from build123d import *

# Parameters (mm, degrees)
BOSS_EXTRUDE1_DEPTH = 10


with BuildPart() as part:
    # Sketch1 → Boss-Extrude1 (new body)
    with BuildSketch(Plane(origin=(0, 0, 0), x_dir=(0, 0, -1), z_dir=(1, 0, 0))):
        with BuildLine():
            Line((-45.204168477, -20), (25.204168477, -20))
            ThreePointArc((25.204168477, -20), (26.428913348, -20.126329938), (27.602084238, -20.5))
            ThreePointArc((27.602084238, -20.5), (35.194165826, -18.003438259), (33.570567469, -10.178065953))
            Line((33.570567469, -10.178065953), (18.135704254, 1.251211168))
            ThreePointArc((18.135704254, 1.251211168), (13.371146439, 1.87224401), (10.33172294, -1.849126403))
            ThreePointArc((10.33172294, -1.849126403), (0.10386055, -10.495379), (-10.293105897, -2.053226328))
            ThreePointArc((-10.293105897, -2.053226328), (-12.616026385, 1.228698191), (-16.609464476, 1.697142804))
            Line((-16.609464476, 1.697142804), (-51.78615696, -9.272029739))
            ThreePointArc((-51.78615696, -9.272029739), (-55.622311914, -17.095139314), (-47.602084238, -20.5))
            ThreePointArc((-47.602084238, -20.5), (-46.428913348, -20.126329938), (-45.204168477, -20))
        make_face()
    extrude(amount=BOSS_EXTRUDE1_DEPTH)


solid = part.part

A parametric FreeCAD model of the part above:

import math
import FreeCAD as App
import Part
import Sketcher

V = App.Vector
Q = App.Units.Quantity

doc = App.newDocument("Part")
params = doc.addObject("Spreadsheet::Sheet", "Params")
for row, (alias, value) in enumerate([
    ("sketch1_radius", "6 mm"),
    ("pad1_length", "10 mm"),
], start=1):
    params.set(f"A{row}", alias)
    params.set(f"B{row}", "=" + value)
    params.setAlias(f"B{row}", alias)

body = doc.addObject("PartDesign::Body", "Body")

sketch1 = body.newObject("Sketcher::SketchObject", "Sketch")
sketch1.AttachmentSupport = (doc.getObject("YZ_Plane"), [""])
sketch1.MapMode = "FlatFace"
sketch1.addGeometry(Part.LineSegment(V(-20, 45.2, 0), V(-20, -25.2, 0)), False)
sketch1.addGeometry(Part.ArcOfCircle(Part.Circle(V(-26, -25.2, 0), V(0, 0, 1), 6), math.radians(-24), math.radians(0)), False)
sketch1.addGeometry(Part.ArcOfCircle(Part.Circle(V(-15, -30, 0), V(0, 0, 1), 6), math.radians(156), math.radians(323)), False)
sketch1.addGeometry(Part.LineSegment(V(-10.2, -33.6, 0), V(1.3, -18.1, 0)), False)
sketch1.addGeometry(Part.ArcOfCircle(Part.Circle(V(-2.7, -15.2, 0), V(0, 0, 1), 4.9), math.radians(-37), math.radians(80)), False)
sketch1.addGeometry(Part.ArcOfCircle(Part.Circle(V(0, 0, 0), V(0, 0, 1), 10.5), math.radians(101), math.radians(260)), False)
sketch1.addGeometry(Part.ArcOfCircle(Part.Circle(V(-3, 15.1, 0), V(0, 0, 1), 4.9), math.radians(-79), math.radians(17)), False)
sketch1.addGeometry(Part.LineSegment(V(1.7, 16.6, 0), V(-9.3, 51.8, 0)), False)
sketch1.addGeometry(Part.ArcOfCircle(Part.Circle(V(-15, 50, 0), V(0, 0, 1), 6), math.radians(17), math.radians(204)), False)
sketch1.addGeometry(Part.ArcOfCircle(Part.Circle(V(-26, 45.2, 0), V(0, 0, 1), 6), math.radians(0), math.radians(24)), False)
sketch1.addConstraint(Sketcher.Constraint("Tangent", 0, 2, 1, 2))
sketch1.addConstraint(Sketcher.Constraint("Tangent", 1, 1, 2, 1))
sketch1.addConstraint(Sketcher.Constraint("Tangent", 2, 2, 3, 1))
sketch1.addConstraint(Sketcher.Constraint("Tangent", 3, 2, 4, 1))
sketch1.addConstraint(Sketcher.Constraint("Tangent", 4, 2, 5, 2))
sketch1.addConstraint(Sketcher.Constraint("Tangent", 5, 1, 6, 1))
sketch1.addConstraint(Sketcher.Constraint("Tangent", 6, 2, 7, 1))
sketch1.addConstraint(Sketcher.Constraint("Tangent", 7, 2, 8, 1))
sketch1.addConstraint(Sketcher.Constraint("Tangent", 8, 2, 9, 2))
sketch1.addConstraint(Sketcher.Constraint("Tangent", 9, 1, 0, 1))
sketch1.addConstraint(Sketcher.Constraint("Vertical", 0))
sketch1.addConstraint(Sketcher.Constraint("Coincident", 5, 3, -1, 1))
sketch1.addConstraint(Sketcher.Constraint("Equal", 1, 2))
sketch1.addConstraint(Sketcher.Constraint("Equal", 4, 6))
sketch1.addConstraint(Sketcher.Constraint("Equal", 2, 8))
sketch1.addConstraint(Sketcher.Constraint("Equal", 8, 9))
sketch1.addConstraint(Sketcher.Constraint("Vertical", 2, 3, 8, 3))
sketch1.addConstraint(Sketcher.Constraint("Radius", 1, Q("6 mm")))
sketch1.addConstraint(Sketcher.Constraint("DistanceX", 1, 3, -1, 1, Q("26 mm")))
sketch1.addConstraint(Sketcher.Constraint("DistanceX", 2, 3, -1, 1, Q("15 mm")))
sketch1.addConstraint(Sketcher.Constraint("DistanceY", 2, 3, -1, 1, Q("30 mm")))
sketch1.addConstraint(Sketcher.Constraint("DistanceY", -1, 1, 8, 3, Q("50 mm")))
sketch1.addConstraint(Sketcher.Constraint("Radius", 4, Q("4.940939 mm")))
sketch1.addConstraint(Sketcher.Constraint("Radius", 5, Q("10.495893 mm")))
sketch1.addConstraint(Sketcher.Constraint("DistanceY", 2, 2, 0, 2, Q("8.366399 mm")))
sketch1.addConstraint(Sketcher.Constraint("DistanceX", 5, 1, 4, 2, Q("0.2041 mm")))
sketch1.setExpression("Constraints[17]", "Params.sketch1_radius")
pad1 = body.newObject("PartDesign::Pad", "Pad")
pad1.Profile = sketch1
pad1.setExpression("Length", "Params.pad1_length")

doc.recompute()
